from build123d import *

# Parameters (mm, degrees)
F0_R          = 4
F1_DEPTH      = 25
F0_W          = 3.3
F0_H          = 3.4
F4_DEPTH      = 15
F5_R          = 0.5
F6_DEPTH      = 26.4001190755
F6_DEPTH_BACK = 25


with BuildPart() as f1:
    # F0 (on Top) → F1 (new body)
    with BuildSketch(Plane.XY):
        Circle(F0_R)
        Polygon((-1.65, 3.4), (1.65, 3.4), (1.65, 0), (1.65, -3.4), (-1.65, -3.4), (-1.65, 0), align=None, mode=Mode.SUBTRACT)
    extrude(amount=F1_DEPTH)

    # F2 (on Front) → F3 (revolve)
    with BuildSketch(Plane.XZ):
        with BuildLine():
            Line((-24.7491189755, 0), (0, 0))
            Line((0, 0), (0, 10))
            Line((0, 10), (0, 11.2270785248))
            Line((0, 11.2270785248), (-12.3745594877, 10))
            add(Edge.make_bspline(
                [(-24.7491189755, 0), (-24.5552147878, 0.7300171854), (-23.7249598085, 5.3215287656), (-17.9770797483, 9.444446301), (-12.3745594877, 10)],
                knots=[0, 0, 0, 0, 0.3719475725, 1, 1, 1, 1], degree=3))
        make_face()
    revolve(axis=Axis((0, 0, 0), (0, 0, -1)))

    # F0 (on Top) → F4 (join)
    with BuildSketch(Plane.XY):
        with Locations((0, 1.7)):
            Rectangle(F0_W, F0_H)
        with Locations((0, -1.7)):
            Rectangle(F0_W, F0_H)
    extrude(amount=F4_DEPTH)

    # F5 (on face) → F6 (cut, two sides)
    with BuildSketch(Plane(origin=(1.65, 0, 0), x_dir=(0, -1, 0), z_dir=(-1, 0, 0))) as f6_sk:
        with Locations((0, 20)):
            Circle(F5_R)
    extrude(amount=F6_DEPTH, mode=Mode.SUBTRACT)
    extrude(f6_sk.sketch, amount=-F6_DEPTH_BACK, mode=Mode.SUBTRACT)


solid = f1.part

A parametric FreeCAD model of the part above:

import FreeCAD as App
import Part
import Sketcher
from FreeCAD import Vector
Q = App.Units.Quantity

doc = App.newDocument("Part")
body = doc.addObject("PartDesign::Body", "Body")

# Sketch on XY plane
sketch1 = body.newObject("Sketcher::SketchObject", "Sketch")
sketch1.AttachmentSupport = (doc.getObject("XY_Plane"), [""])
sketch1.MapMode = "FlatFace"
sketch1.addGeometry([
    Part.Circle(Vector(0, 0, 0), Vector(0, 0, 1), 4),  # 0
    Part.LineSegment(Vector(-1.6, -3.4, 0), Vector(-1.6, 3.4, 0)),  # 1
    Part.LineSegment(Vector(-1.6, 3.4, 0), Vector(1.6, 3.4, 0)),  # 2
    Part.LineSegment(Vector(1.6, 3.4, 0), Vector(1.6, -3.4, 0)),  # 3
    Part.LineSegment(Vector(1.6, -3.4, 0), Vector(-1.6, -3.4, 0)),  # 4
], False)
sketch1.addConstraint([
    Sketcher.Constraint("Coincident", 1, 2, 2, 1),
    Sketcher.Constraint("Coincident", 2, 2, 3, 1),
    Sketcher.Constraint("Coincident", 3, 2, 4, 1),
    Sketcher.Constraint("Coincident", 4, 2, 1, 1),
    Sketcher.Constraint("Vertical", 1),
    Sketcher.Constraint("Horizontal", 2),
    Sketcher.Constraint("Vertical", 3),
    Sketcher.Constraint("Horizontal", 4),
    Sketcher.Constraint("Coincident", 0, 3, -1, 1),
    Sketcher.Constraint("Symmetric", 1, 2, 3, 2, -1, 1),
    Sketcher.Constraint("Diameter", 0, Q("8 mm")),
    Sketcher.Constraint("DistanceX", 2, 1, 2, 2, Q("3.3 mm")),
    Sketcher.Constraint("DistanceY", 1, 1, 1, 2, Q("6.8 mm")),
])
pad1 = body.newObject("PartDesign::Pad", "Pad")
pad1.Profile = sketch1
pad1.Length = 25

# Sketch on XZ plane
sketch2 = body.newObject("Sketcher::SketchObject", "Sketch001")
sketch2.AttachmentSupport = (doc.getObject("XZ_Plane"), [""])
sketch2.MapMode = "FlatFace"
sketch2.addGeometry([
    Part.LineSegment(Vector(-24.749119, 0, 0), Vector(0, 0, 0)),
    Part.LineSegment(Vector(0, 0, 0), Vector(0, 11.227079, 0)),
    Part.LineSegment(Vector(0, 11.227079, 0), Vector(-12.374559, 10, 0)),
    Part.BSplineCurve([Vector(-24.749119, 0, 0), Vector(-24.555215, 0.730017, 0), Vector(-23.72496, 5.321529, 0), Vector(-17.97708, 9.444446, 0), Vector(-12.374559, 10, 0)], [4, 1, 4], [0, 0.371947572, 1], False, 3, [1, 1, 1, 1, 1], False),
], False)
sketch2.addConstraint([
    Sketcher.Constraint("Block", 3),
    Sketcher.Constraint("Coincident", 0, 2, 1, 1),
    Sketcher.Constraint("Coincident", 1, 2, 2, 1),
    Sketcher.Constraint("Coincident", 2, 2, 3, 2),
    Sketcher.Constraint("Coincident", 3, 1, 0, 1),
    Sketcher.Constraint("Horizontal", 0),
    Sketcher.Constraint("Vertical", 1),
    Sketcher.Constraint("PointOnObject", 1, 2, -2),
    Sketcher.Constraint("DistanceY", 1, 1, 1, 2, Q("11.227079 mm")),
])
revolution = body.newObject("PartDesign::Revolution", "Revolution")
revolution.Profile = sketch2
revolution.ReferenceAxis = (sketch2, ["V_Axis"])
revolution.Angle = 360

# Sketch on XY plane
sketch3 = body.newObject("Sketcher::SketchObject", "Sketch002")
sketch3.AttachmentSupport = (doc.getObject("XY_Plane"), [""])
sketch3.MapMode = "FlatFace"
sketch3.addGeometry([
    Part.LineSegment(Vector(-1.6, 3.4, 0), Vector(-1.6, -3.4, 0)),
    Part.LineSegment(Vector(-1.6, -3.4, 0), Vector(1.6, -3.4, 0)),
    Part.LineSegment(Vector(1.6, -3.4, 0), Vector(1.6, 3.4, 0)),
    Part.LineSegment(Vector(1.6, 3.4, 0), Vector(-1.6, 3.4, 0)),
], False)
sketch3.addConstraint([
    Sketcher.Constraint("Coincident", 0, 2, 1, 1),
    Sketcher.Constraint("Coincident", 1, 2, 2, 1),
    Sketcher.Constraint("Coincident", 2, 2, 3, 1),
    Sketcher.Constraint("Coincident", 3, 2, 0, 1),
    Sketcher.Constraint("Vertical", 0),
    Sketcher.Constraint("Horizontal", 1),
    Sketcher.Constraint("Vertical", 2),
    Sketcher.Constraint("Horizontal", 3),
    Sketcher.Constraint("Symmetric", 0, 2, 2, 2, -1, 1),
    Sketcher.Constraint("DistanceX", 1, 1, 1, 2, Q("3.3 mm")),
    Sketcher.Constraint("DistanceY", 0, 2, 0, 1, Q("6.8 mm")),
])
pad2 = body.newObject("PartDesign::Pad", "Pad001")
pad2.Profile = sketch3
pad2.Length = 15

# Sketch on YZ plane
sketch4 = body.newObject("Sketcher::SketchObject", "Sketch003")
sketch4.AttachmentSupport = (doc.getObject("YZ_Plane"), [""])
sketch4.MapMode = "FlatFace"
sketch4.AttachmentOffset = App.Placement(Vector(0, 0, 1.65), App.Rotation())
sketch4.addGeometry(Part.Circle(Vector(0, 20, 0), Vector(0, 0, 1), 0.5), False)
sketch4.addConstraint([
    Sketcher.Constraint("PointOnObject", 0, 3, -2),
    Sketcher.Constraint("Diameter", 0, Q("1 mm")),
    Sketcher.Constraint("DistanceY", -1, 1, 0, 3, Q("20 mm")),
])
pocket1 = body.newObject("PartDesign::Pocket", "Pocket")
pocket1.Profile = sketch4
pocket1.Type = "ThroughAll"
pocket1.Midplane = True

doc.recompute()
